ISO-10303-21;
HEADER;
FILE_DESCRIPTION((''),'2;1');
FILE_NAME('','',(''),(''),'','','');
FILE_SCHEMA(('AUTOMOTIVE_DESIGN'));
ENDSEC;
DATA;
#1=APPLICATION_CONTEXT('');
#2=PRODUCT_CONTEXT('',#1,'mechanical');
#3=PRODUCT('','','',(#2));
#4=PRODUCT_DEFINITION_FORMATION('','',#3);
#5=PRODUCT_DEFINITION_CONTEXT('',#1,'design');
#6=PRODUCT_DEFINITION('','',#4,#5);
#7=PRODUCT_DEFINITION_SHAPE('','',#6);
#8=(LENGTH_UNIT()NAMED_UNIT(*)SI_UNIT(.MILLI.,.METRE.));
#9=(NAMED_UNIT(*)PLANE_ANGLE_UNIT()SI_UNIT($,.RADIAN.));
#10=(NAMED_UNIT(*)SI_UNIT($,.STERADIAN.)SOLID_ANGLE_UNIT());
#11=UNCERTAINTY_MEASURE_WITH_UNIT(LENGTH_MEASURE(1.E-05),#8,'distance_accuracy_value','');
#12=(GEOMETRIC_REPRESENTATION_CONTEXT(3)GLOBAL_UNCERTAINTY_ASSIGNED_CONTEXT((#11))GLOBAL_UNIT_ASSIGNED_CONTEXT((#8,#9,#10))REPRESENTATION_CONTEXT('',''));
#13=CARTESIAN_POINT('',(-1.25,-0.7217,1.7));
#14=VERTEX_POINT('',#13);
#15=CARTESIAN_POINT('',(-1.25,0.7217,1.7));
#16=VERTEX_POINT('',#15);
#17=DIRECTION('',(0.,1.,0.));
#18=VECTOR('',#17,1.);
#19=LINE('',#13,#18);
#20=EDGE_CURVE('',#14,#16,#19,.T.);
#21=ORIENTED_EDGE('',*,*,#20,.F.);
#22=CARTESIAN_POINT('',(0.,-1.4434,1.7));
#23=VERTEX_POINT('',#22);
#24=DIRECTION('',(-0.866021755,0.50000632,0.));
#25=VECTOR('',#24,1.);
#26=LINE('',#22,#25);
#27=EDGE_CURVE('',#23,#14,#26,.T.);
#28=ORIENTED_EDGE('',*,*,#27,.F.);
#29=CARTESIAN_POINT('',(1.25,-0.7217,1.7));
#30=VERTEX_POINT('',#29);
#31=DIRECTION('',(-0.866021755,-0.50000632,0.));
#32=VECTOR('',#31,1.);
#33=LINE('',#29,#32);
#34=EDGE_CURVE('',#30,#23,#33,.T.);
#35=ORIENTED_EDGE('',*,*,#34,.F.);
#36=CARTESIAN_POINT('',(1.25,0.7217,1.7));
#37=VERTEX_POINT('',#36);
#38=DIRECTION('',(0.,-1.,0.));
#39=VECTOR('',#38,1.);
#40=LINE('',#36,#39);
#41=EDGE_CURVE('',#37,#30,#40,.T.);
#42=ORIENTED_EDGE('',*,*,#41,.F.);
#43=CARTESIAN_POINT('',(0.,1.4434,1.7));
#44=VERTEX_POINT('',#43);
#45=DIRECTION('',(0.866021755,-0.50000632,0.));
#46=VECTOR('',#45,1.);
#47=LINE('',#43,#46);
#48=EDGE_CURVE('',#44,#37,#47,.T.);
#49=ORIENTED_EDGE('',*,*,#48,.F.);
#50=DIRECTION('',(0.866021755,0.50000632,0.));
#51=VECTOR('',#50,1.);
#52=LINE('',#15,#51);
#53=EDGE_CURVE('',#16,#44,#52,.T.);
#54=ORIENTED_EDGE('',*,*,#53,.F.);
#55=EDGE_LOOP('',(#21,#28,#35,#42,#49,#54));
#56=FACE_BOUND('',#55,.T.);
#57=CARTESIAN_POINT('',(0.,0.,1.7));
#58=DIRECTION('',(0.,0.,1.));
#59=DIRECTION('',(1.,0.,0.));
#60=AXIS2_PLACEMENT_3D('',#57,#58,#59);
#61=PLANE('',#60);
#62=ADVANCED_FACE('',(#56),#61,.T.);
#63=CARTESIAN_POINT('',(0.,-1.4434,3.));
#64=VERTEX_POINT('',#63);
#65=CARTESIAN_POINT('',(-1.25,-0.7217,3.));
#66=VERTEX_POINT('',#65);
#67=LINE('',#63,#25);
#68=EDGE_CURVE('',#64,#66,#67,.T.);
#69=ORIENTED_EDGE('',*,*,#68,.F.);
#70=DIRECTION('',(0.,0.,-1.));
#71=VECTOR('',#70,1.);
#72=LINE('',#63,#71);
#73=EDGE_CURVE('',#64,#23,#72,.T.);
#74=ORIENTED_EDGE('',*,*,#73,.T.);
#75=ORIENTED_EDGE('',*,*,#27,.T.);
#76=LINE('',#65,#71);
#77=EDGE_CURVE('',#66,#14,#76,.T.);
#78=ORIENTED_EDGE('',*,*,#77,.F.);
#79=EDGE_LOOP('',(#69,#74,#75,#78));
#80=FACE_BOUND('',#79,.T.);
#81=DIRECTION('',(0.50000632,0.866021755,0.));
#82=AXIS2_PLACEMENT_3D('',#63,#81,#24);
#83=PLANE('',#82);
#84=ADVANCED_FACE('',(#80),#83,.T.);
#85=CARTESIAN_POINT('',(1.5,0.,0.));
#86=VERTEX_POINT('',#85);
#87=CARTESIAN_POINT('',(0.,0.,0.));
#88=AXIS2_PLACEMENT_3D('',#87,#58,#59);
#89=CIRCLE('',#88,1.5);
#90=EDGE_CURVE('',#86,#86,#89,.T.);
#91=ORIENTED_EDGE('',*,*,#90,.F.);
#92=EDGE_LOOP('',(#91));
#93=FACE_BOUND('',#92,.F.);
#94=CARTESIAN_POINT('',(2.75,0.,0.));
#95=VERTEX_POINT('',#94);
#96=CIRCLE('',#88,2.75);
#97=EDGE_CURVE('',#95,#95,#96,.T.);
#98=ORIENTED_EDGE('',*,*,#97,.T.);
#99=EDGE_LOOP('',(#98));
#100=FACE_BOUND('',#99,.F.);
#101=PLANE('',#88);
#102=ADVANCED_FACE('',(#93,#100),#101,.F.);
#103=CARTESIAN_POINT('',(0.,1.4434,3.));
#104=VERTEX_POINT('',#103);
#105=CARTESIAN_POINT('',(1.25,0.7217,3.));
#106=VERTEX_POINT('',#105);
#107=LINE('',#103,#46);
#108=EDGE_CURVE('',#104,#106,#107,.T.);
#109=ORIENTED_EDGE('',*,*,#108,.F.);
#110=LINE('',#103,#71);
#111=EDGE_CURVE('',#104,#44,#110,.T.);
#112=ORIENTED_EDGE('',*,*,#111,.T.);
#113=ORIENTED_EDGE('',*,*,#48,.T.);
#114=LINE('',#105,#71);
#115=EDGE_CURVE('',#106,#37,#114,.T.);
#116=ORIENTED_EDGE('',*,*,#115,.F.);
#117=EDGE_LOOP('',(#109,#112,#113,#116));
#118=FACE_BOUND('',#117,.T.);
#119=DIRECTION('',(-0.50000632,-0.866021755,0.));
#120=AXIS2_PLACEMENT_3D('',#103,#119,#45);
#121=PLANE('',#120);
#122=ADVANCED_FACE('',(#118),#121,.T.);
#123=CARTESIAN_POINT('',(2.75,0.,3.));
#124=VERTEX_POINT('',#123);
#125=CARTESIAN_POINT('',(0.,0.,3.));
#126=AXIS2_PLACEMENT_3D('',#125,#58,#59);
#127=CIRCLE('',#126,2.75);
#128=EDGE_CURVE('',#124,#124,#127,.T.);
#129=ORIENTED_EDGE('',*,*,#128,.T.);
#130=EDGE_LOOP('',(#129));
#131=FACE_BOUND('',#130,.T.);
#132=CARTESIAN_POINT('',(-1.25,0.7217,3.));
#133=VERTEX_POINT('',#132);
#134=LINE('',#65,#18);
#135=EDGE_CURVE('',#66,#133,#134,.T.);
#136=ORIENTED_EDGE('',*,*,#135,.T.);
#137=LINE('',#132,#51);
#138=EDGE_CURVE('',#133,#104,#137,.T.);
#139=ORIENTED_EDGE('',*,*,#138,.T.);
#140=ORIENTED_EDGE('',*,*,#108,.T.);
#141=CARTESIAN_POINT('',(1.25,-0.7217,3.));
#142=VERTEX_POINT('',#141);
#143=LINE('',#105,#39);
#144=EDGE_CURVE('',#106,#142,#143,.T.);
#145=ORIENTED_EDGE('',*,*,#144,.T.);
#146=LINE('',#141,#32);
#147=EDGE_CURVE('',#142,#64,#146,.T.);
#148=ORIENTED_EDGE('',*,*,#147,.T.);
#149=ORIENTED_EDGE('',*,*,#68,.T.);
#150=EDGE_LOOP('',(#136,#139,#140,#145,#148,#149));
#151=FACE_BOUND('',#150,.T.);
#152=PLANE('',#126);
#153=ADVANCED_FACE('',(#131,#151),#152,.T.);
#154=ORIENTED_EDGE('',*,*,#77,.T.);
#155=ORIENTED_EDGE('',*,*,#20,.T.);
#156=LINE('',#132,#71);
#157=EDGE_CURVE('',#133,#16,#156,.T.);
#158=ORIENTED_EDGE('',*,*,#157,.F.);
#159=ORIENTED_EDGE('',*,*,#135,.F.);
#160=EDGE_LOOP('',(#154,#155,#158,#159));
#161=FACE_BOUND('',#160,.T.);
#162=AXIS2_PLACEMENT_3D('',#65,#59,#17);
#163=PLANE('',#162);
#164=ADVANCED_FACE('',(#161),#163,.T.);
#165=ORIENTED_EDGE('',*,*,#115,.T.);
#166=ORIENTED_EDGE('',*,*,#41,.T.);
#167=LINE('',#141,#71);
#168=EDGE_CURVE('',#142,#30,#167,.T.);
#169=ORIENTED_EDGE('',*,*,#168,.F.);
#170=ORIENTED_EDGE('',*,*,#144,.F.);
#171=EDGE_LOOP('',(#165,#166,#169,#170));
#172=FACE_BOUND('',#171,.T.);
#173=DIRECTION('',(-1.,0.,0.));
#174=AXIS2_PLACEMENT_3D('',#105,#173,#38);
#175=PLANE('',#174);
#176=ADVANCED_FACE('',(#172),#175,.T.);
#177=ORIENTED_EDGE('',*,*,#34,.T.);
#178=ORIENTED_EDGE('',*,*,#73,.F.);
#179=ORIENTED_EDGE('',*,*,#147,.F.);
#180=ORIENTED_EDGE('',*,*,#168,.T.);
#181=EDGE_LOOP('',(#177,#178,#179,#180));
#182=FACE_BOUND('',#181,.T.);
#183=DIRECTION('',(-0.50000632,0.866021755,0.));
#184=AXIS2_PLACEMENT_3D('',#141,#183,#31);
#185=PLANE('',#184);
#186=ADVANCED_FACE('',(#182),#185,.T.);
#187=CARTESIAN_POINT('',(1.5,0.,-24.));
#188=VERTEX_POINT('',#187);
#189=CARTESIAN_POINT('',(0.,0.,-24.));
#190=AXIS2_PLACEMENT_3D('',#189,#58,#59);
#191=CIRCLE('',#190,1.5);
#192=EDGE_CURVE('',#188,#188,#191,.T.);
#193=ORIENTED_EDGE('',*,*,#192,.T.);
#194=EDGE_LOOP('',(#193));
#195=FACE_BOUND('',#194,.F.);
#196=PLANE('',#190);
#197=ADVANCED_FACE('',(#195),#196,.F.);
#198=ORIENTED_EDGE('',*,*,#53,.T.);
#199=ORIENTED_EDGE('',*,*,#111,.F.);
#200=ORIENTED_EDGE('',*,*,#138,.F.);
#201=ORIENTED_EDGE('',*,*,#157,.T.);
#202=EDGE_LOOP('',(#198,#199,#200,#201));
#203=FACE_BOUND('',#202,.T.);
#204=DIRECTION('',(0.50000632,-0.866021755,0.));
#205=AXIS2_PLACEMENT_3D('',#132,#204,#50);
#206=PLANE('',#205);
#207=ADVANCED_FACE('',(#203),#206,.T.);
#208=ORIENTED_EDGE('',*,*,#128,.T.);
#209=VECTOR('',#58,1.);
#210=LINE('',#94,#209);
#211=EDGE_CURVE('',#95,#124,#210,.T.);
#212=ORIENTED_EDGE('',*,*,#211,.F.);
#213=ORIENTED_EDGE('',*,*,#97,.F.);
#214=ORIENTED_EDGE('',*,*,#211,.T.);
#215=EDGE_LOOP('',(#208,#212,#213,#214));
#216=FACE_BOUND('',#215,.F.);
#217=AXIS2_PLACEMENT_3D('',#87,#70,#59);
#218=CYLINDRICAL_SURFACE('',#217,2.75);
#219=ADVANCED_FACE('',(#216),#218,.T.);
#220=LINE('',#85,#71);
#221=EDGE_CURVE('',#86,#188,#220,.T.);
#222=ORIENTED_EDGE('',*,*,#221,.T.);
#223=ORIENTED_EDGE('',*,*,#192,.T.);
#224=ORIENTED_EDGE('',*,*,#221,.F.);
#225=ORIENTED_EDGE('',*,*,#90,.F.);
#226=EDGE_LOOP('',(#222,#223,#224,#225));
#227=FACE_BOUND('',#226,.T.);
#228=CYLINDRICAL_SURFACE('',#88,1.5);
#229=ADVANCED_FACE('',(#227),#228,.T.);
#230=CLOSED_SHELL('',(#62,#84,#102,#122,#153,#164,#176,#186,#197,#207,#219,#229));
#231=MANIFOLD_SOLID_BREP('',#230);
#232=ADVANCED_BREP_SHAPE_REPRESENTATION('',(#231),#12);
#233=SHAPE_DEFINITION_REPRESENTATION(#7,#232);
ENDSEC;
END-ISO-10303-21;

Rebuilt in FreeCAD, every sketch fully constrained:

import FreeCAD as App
import Part
import Sketcher
Q = App.Units.Quantity

doc = App.newDocument("Part")
body = doc.addObject("PartDesign::Body", "Body")

# Sketch on XY plane
sketch1 = body.newObject("Sketcher::SketchObject", "Sketch")
sketch1.AttachmentSupport = (doc.getObject("XY_Plane"), [""])
sketch1.MapMode = "FlatFace"
sketch1.addGeometry(Part.Circle(App.Vector(0, 0, 0), App.Vector(0, 0, 1), 1.5), False)
sketch1.addConstraint(Sketcher.Constraint("Coincident", 0, 3, -1, 1))
sketch1.addConstraint(Sketcher.Constraint("Diameter", 0, Q("3 mm")))
pad1 = body.newObject("PartDesign::Pad", "Pad")
pad1.Profile = sketch1
pad1.Length = 24
pad1.Reversed = True

# Sketch on XY plane
sketch2 = body.newObject("Sketcher::SketchObject", "Sketch001")
sketch2.AttachmentSupport = (doc.getObject("XY_Plane"), [""])
sketch2.MapMode = "FlatFace"
sketch2.addGeometry(Part.Circle(App.Vector(0, 0, 0), App.Vector(0, 0, 1), 2.8), False)
sketch2.addConstraint(Sketcher.Constraint("Coincident", 0, 3, -1, 1))
sketch2.addConstraint(Sketcher.Constraint("Diameter", 0, Q("5.5 mm")))
pad2 = body.newObject("PartDesign::Pad", "Pad001")
pad2.Profile = sketch2
pad2.Length = 3

# Sketch on XY plane
sketch3 = body.newObject("Sketcher::SketchObject", "Sketch002")
sketch3.AttachmentSupport = (doc.getObject("XY_Plane"), [""])
sketch3.MapMode = "FlatFace"
sketch3.AttachmentOffset = App.Placement(App.Vector(0, 0, 3), App.Rotation())
sketch3.addGeometry(Part.LineSegment(App.Vector(1.2, 0.7, 0), App.Vector(0, 1.4, 0)), False)
sketch3.addGeometry(Part.LineSegment(App.Vector(0, 1.4, 0), App.Vector(-1.2, 0.7, 0)), False)
sketch3.addGeometry(Part.LineSegment(App.Vector(-1.2, 0.7, 0), App.Vector(-1.2, -0.7, 0)), False)
sketch3.addGeometry(Part.LineSegment(App.Vector(-1.2, -0.7, 0), App.Vector(0, -1.4, 0)), False)
sketch3.addGeometry(Part.LineSegment(App.Vector(0, -1.4, 0), App.Vector(1.2, -0.7, 0)), False)
sketch3.addGeometry(Part.LineSegment(App.Vector(1.2, -0.7, 0), App.Vector(1.2, 0.7, 0)), False)
sketch3.addConstraint(Sketcher.Constraint("Coincident", 0, 2, 1, 1))
sketch3.addConstraint(Sketcher.Constraint("Coincident", 1, 2, 2, 1))
sketch3.addConstraint(Sketcher.Constraint("Coincident", 2, 2, 3, 1))
sketch3.addConstraint(Sketcher.Constraint("Coincident", 3, 2, 4, 1))
sketch3.addConstraint(Sketcher.Constraint("Coincident", 4, 2, 5, 1))
sketch3.addConstraint(Sketcher.Constraint("Coincident", 5, 2, 0, 1))
sketch3.addConstraint(Sketcher.Constraint("Vertical", 2))
sketch3.addConstraint(Sketcher.Constraint("Vertical", 5))
sketch3.addConstraint(Sketcher.Constraint("Symmetric", 0, 2, 3, 2, -1, 1))
sketch3.addConstraint(Sketcher.Constraint("Symmetric", 1, 2, 4, 2, -1, 1))
sketch3.addConstraint(Sketcher.Constraint("PointOnObject", 0, 2, -2))
sketch3.addConstraint(Sketcher.Constraint("Parallel", 0, 3))
sketch3.addConstraint(Sketcher.Constraint("Horizontal", 2, 2, 4, 2))
sketch3.addConstraint(Sketcher.Constraint("DistanceX", 2, 2, 4, 2, Q("2.5 mm")))
sketch3.addConstraint(Sketcher.Constraint("Angle", 0, Q("149.9996 deg")))
sketch3.addConstraint(Sketcher.Constraint("DistanceY", 2, 2, 2, 1, Q("1.4434 mm")))
pocket1 = body.newObject("PartDesign::Pocket", "Pocket")
pocket1.Profile = sketch3
pocket1.Length = 1.3

doc.recompute()
